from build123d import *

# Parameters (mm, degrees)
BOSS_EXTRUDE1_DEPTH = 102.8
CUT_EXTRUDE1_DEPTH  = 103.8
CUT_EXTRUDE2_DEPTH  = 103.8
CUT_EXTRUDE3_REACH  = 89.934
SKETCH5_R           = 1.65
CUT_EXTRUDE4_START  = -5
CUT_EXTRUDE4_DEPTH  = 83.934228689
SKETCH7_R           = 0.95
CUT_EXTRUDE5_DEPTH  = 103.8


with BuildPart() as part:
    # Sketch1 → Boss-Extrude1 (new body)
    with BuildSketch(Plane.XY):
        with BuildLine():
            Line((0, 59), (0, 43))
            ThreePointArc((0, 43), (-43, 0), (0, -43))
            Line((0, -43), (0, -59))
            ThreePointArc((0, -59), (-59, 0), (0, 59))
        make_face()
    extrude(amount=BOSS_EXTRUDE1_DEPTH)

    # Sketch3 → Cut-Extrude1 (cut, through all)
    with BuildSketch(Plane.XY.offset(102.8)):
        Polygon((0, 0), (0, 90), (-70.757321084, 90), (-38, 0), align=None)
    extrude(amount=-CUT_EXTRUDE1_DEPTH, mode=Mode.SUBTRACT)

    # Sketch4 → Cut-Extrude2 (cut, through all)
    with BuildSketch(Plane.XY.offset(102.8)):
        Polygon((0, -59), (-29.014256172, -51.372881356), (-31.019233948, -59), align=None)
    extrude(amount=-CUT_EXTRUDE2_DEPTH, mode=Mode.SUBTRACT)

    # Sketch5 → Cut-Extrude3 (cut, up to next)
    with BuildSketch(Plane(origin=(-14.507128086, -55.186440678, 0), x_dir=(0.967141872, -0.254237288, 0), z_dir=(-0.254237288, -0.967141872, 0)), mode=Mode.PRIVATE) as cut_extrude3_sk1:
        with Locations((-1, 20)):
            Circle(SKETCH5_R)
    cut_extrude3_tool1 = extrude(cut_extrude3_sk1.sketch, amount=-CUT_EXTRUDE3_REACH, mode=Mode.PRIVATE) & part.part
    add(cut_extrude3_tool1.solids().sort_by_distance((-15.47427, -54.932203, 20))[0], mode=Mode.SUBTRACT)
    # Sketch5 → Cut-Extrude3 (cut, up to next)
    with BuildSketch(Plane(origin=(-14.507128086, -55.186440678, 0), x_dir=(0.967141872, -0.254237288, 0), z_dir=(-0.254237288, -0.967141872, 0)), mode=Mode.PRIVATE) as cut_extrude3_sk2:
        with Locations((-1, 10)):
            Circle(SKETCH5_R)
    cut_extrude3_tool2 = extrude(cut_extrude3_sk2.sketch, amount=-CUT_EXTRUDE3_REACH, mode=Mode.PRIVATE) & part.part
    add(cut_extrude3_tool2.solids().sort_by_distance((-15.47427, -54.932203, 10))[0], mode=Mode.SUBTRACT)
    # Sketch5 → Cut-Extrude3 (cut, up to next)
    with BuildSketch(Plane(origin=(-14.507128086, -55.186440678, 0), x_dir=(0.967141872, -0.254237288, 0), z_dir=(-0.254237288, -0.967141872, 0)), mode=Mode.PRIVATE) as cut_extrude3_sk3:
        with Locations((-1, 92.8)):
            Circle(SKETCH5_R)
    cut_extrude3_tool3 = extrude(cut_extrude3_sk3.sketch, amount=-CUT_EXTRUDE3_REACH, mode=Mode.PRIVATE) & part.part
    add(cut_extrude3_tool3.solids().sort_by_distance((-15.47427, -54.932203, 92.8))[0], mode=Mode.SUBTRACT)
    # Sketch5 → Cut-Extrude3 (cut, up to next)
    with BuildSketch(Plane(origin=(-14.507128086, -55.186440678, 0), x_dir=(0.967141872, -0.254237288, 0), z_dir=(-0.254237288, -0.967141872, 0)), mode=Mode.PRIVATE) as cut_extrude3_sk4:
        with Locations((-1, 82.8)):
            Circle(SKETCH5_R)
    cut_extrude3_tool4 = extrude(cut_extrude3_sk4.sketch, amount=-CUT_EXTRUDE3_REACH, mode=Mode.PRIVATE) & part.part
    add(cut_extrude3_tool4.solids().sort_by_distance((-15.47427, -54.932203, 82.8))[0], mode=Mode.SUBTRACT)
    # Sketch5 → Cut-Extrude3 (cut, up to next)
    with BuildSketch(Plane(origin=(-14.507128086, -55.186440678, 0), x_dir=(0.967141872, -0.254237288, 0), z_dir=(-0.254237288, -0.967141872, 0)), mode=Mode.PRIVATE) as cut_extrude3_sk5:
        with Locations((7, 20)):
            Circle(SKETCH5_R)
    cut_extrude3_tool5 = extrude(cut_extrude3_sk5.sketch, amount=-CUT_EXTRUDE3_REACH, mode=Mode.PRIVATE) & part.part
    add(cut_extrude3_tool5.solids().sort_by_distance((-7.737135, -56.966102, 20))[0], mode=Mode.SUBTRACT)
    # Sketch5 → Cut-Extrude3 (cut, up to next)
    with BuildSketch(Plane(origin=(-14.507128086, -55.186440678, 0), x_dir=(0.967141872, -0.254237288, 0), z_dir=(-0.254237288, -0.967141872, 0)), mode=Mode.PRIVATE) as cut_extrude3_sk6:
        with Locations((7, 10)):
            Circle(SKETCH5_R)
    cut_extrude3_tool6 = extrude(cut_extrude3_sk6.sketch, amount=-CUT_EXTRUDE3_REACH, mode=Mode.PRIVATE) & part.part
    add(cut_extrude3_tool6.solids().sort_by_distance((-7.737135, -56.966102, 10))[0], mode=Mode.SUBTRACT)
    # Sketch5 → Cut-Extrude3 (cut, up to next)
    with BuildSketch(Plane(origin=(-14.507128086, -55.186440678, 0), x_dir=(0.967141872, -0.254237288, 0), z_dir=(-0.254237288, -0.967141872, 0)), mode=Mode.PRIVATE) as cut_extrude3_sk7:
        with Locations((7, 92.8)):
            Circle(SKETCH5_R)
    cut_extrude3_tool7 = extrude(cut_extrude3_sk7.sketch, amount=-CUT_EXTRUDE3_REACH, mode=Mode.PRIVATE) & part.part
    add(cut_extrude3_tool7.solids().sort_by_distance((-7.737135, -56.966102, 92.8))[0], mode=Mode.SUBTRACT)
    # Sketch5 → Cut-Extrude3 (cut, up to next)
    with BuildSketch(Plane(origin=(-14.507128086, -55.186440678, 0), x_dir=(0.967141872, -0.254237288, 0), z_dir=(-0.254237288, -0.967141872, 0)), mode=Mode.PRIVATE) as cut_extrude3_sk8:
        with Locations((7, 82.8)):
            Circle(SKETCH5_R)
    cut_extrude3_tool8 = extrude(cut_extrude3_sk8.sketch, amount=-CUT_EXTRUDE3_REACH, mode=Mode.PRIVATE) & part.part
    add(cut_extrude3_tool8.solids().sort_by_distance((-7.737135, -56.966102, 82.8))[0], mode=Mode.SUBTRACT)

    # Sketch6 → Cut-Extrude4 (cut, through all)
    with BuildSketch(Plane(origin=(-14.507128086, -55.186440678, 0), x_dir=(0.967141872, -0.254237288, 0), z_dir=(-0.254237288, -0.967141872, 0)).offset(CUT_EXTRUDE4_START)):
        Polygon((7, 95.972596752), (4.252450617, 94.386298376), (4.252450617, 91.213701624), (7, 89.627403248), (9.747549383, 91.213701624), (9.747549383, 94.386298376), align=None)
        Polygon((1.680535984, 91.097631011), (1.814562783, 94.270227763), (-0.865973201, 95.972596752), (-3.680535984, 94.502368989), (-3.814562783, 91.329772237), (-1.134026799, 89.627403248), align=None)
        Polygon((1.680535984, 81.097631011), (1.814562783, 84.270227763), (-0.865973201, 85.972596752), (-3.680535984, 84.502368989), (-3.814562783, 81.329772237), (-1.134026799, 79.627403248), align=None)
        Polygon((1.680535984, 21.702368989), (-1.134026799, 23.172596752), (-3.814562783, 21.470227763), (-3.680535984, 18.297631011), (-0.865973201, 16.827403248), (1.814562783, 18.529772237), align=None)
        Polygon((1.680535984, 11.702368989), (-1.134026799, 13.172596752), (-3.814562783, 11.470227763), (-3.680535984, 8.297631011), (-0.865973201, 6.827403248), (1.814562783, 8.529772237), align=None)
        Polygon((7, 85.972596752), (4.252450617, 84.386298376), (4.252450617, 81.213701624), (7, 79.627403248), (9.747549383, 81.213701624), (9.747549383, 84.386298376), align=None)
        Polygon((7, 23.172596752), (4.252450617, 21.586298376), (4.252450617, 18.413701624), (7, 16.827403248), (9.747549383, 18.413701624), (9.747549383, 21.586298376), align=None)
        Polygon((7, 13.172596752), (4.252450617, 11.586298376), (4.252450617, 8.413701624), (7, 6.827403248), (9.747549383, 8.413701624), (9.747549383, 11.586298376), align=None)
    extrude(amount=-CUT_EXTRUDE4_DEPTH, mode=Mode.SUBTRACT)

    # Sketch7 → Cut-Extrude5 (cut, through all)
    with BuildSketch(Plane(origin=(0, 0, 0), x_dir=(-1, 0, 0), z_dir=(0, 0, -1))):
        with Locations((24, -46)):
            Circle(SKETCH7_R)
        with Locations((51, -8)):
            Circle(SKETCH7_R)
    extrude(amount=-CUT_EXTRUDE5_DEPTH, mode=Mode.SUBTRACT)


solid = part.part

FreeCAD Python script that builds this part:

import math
import FreeCAD as App
import Part
import Sketcher
from FreeCAD import Vector
Q = App.Units.Quantity


def add_polygon(sketch, points):
    """Adds a closed chain of lines whose ends are joined by coincident constraints."""
    first, n = sketch.GeometryCount, len(points)
    for a, b in zip(points, points[1:] + points[:1]):
        sketch.addGeometry(Part.LineSegment(App.Vector(*a, 0), App.Vector(*b, 0)), False)
    for i in range(n):
        sketch.addConstraint(Sketcher.Constraint("Coincident", first + i, 2, first + (i + 1) % n, 1))

doc = App.newDocument("Part")
params = doc.addObject("Spreadsheet::Sheet", "Params")
for row, (alias, value) in enumerate([
    ("sketch1_radius", "59 mm"),
    ("sketch1_radius2", "43 mm"),
    ("pad1_length", "102.8 mm"),
    ("sketch2_width", "38 mm"),
    ("sketch2_height", "90 mm"),
    ("sketch3_length", "30 mm"),
    ("sketch4_diameter", "3.3 mm"),
    ("sketch5_diameter", "3.3 mm"),
    ("sketch6_diameter", "3.3 mm"),
    ("sketch7_diameter", "3.3 mm"),
    ("sketch8_diameter", "3.3 mm"),
    ("sketch9_diameter", "3.3 mm"),
    ("sketch10_diameter", "3.3 mm"),
    ("sketch11_diameter", "3.3 mm"),
    ("sketch13_diameter", "1.9 mm"),
], start=1):
    params.set(f"A{row}", alias)
    params.set(f"B{row}", "=" + value)
    params.setAlias(f"B{row}", alias)

body = doc.addObject("PartDesign::Body", "Body")

sketch1 = body.newObject("Sketcher::SketchObject", "Sketch")
sketch1.AttachmentSupport = (doc.getObject("XY_Plane"), [""])
sketch1.MapMode = "FlatFace"
sketch1.addGeometry(Part.LineSegment(Vector(0, 43, 0), Vector(0, 59, 0)), False)
sketch1.addGeometry(Part.ArcOfCircle(Part.Circle(Vector(0, 0, 0), Vector(0, 0, 1), 59), math.radians(90), math.radians(270)), False)
sketch1.addGeometry(Part.LineSegment(Vector(0, -59, 0), Vector(0, -43, 0)), False)
sketch1.addGeometry(Part.ArcOfCircle(Part.Circle(Vector(0, 0, 0), Vector(0, 0, 1), 43), math.radians(90), math.radians(270)), False)
sketch1.addConstraint(Sketcher.Constraint("Coincident", 0, 2, 1, 1))
sketch1.addConstraint(Sketcher.Constraint("Coincident", 1, 2, 2, 1))
sketch1.addConstraint(Sketcher.Constraint("Coincident", 2, 2, 3, 2))
sketch1.addConstraint(Sketcher.Constraint("Coincident", 3, 1, 0, 1))
sketch1.addConstraint(Sketcher.Constraint("Vertical", 0))
sketch1.addConstraint(Sketcher.Constraint("Vertical", 2))
sketch1.addConstraint(Sketcher.Constraint("Coincident", 1, 3, -1, 1))
sketch1.addConstraint(Sketcher.Constraint("Coincident", 3, 3, -1, 1))
sketch1.addConstraint(Sketcher.Constraint("PointOnObject", 0, 2, -2))
sketch1.addConstraint(Sketcher.Constraint("PointOnObject", 1, 2, -2))
sketch1.addConstraint(Sketcher.Constraint("Radius", 1, 59.0))
sketch1.addConstraint(Sketcher.Constraint("Radius", 3, 43.0))
sketch1.setExpression("Constraints[10]", "Params.sketch1_radius")
sketch1.setExpression("Constraints[11]", "Params.sketch1_radius2")
pad1 = body.newObject("PartDesign::Pad", "Pad")
pad1.Profile = sketch1
pad1.setExpression("Length", "Params.pad1_length")

sketch2 = body.newObject("Sketcher::SketchObject", "Sketch001")
sketch2.AttachmentSupport = (doc.getObject("XY_Plane"), [""])
sketch2.MapMode = "FlatFace"
sketch2.AttachmentOffset = App.Placement(Vector(0, 0, 102.8), App.Rotation())
add_polygon(sketch2, [(0, 0), (0, 90), (-71, 90), (-38, 0)])
sketch2.addConstraint(Sketcher.Constraint("Vertical", 0))
sketch2.addConstraint(Sketcher.Constraint("Horizontal", 1))
sketch2.addConstraint(Sketcher.Constraint("Horizontal", 3))
sketch2.addConstraint(Sketcher.Constraint("Coincident", 3, 2, -1, 1))
sketch2.addConstraint(Sketcher.Constraint("DistanceX", 3, 1, 3, 2, 38.0))
sketch2.addConstraint(Sketcher.Constraint("DistanceY", 0, 1, 0, 2, 90.0))
sketch2.addConstraint(Sketcher.Constraint("Angle", 2, Q("-70 deg")))
sketch2.setExpression("Constraints[8]", "Params.sketch2_width")
sketch2.setExpression("Constraints[9]", "Params.sketch2_height")
pocket1 = body.newObject("PartDesign::Pocket", "Pocket")
pocket1.Profile = sketch2
pocket1.Type = "ThroughAll"

sketch3 = body.newObject("Sketcher::SketchObject", "Sketch002")
sketch3.AttachmentSupport = (doc.getObject("XY_Plane"), [""])
sketch3.MapMode = "FlatFace"
sketch3.AttachmentOffset = App.Placement(Vector(0, 0, 102.8), App.Rotation())
add_polygon(sketch3, [(0, -59), (-29, -51), (-31, -59)])
sketch3.addConstraint(Sketcher.Constraint("Horizontal", 2))
sketch3.addConstraint(Sketcher.Constraint("PointOnObject", 2, 2, -2))
sketch3.addConstraint(Sketcher.Constraint("Perpendicular", 0, 1))
sketch3.addConstraint(Sketcher.Constraint("Distance", 0, 30.0))
sketch3.addConstraint(Sketcher.Constraint("DistanceY", 1, 2, -1, 1, 59.0))
sketch3.addConstraint(Sketcher.Constraint("DistanceX", 2, 1, 2, 2, 31.019234))
sketch3.setExpression("Constraints[6]", "Params.sketch3_length")
pocket2 = body.newObject("PartDesign::Pocket", "Pocket001")
pocket2.Profile = sketch3
pocket2.Type = "ThroughAll"

sketch4 = body.newObject("Sketcher::SketchObject", "Sketch003")
sketch4.Placement = App.Placement(Vector(-14.507128, -55.186441, 0), App.Rotation(Vector(0.967141872, -0.254237288, 0), Vector(0, 0, 0.999999999), Vector(-0.254237288, -0.967141872, 0), "ZXY"))
sketch4.addGeometry(Part.Circle(Vector(-1, 20, 0), Vector(0, 0, 1), 1.6), False)
sketch4.addConstraint(Sketcher.Constraint("Diameter", 0, 3.3))
sketch4.addConstraint(Sketcher.Constraint("DistanceX", 0, 3, -1, 1, 1.0))
sketch4.addConstraint(Sketcher.Constraint("DistanceY", -1, 1, 0, 3, 20.0))
sketch4.setExpression("Constraints[0]", "Params.sketch4_diameter")
pocket3 = body.newObject("PartDesign::Pocket", "Pocket002")
pocket3.Profile = sketch4
pocket3.Type = "UpToFirst"

sketch5 = body.newObject("Sketcher::SketchObject", "Sketch004")
sketch5.Placement = App.Placement(Vector(-14.507128, -55.186441, 0), App.Rotation(Vector(0.967141872, -0.254237288, 0), Vector(0, 0, 0.999999999), Vector(-0.254237288, -0.967141872, 0), "ZXY"))
sketch5.addGeometry(Part.Circle(Vector(-1, 10, 0), Vector(0, 0, 1), 1.6), False)
sketch5.addConstraint(Sketcher.Constraint("Diameter", 0, 3.3))
sketch5.addConstraint(Sketcher.Constraint("DistanceX", 0, 3, -1, 1, 1.0))
sketch5.addConstraint(Sketcher.Constraint("DistanceY", -1, 1, 0, 3, 10.0))
sketch5.setExpression("Constraints[0]", "Params.sketch5_diameter")
pocket4 = body.newObject("PartDesign::Pocket", "Pocket003")
pocket4.Profile = sketch5
pocket4.Type = "UpToFirst"

sketch6 = body.newObject("Sketcher::SketchObject", "Sketch005")
sketch6.Placement = App.Placement(Vector(-14.507128, -55.186441, 0), App.Rotation(Vector(0.967141872, -0.254237288, 0), Vector(0, 0, 0.999999999), Vector(-0.254237288, -0.967141872, 0), "ZXY"))
sketch6.addGeometry(Part.Circle(Vector(-1, 92.8, 0), Vector(0, 0, 1), 1.6), False)
sketch6.addConstraint(Sketcher.Constraint("Diameter", 0, 3.3))
sketch6.addConstraint(Sketcher.Constraint("DistanceX", 0, 3, -1, 1, 1.0))
sketch6.addConstraint(Sketcher.Constraint("DistanceY", -1, 1, 0, 3, 92.8))
sketch6.setExpression("Constraints[0]", "Params.sketch6_diameter")
pocket5 = body.newObject("PartDesign::Pocket", "Pocket004")
pocket5.Profile = sketch6
pocket5.Type = "UpToFirst"

sketch7 = body.newObject("Sketcher::SketchObject", "Sketch006")
sketch7.Placement = App.Placement(Vector(-14.507128, -55.186441, 0), App.Rotation(Vector(0.967141872, -0.254237288, 0), Vector(0, 0, 0.999999999), Vector(-0.254237288, -0.967141872, 0), "ZXY"))
sketch7.addGeometry(Part.Circle(Vector(-1, 82.8, 0), Vector(0, 0, 1), 1.6), False)
sketch7.addConstraint(Sketcher.Constraint("Diameter", 0, 3.3))
sketch7.addConstraint(Sketcher.Constraint("DistanceX", 0, 3, -1, 1, 1.0))
sketch7.addConstraint(Sketcher.Constraint("DistanceY", -1, 1, 0, 3, 82.8))
sketch7.setExpression("Constraints[0]", "Params.sketch7_diameter")
pocket6 = body.newObject("PartDesign::Pocket", "Pocket005")
pocket6.Profile = sketch7
pocket6.Type = "UpToFirst"

sketch8 = body.newObject("Sketcher::SketchObject", "Sketch007")
sketch8.Placement = App.Placement(Vector(-14.507128, -55.186441, 0), App.Rotation(Vector(0.967141872, -0.254237288, 0), Vector(0, 0, 0.999999999), Vector(-0.254237288, -0.967141872, 0), "ZXY"))
sketch8.addGeometry(Part.Circle(Vector(7, 20, 0), Vector(0, 0, 1), 1.6), False)
sketch8.addConstraint(Sketcher.Constraint("Diameter", 0, 3.3))
sketch8.addConstraint(Sketcher.Constraint("DistanceX", -1, 1, 0, 3, 7.0))
sketch8.addConstraint(Sketcher.Constraint("DistanceY", -1, 1, 0, 3, 20.0))
sketch8.setExpression("Constraints[0]", "Params.sketch8_diameter")
pocket7 = body.newObject("PartDesign::Pocket", "Pocket006")
pocket7.Profile = sketch8
pocket7.Type = "UpToFirst"

sketch9 = body.newObject("Sketcher::SketchObject", "Sketch008")
sketch9.Placement = App.Placement(Vector(-14.507128, -55.186441, 0), App.Rotation(Vector(0.967141872, -0.254237288, 0), Vector(0, 0, 0.999999999), Vector(-0.254237288, -0.967141872, 0), "ZXY"))
sketch9.addGeometry(Part.Circle(Vector(7, 10, 0), Vector(0, 0, 1), 1.6), False)
sketch9.addConstraint(Sketcher.Constraint("Diameter", 0, 3.3))
sketch9.addConstraint(Sketcher.Constraint("DistanceX", -1, 1, 0, 3, 7.0))
sketch9.addConstraint(Sketcher.Constraint("DistanceY", -1, 1, 0, 3, 10.0))
sketch9.setExpression("Constraints[0]", "Params.sketch9_diameter")
pocket8 = body.newObject("PartDesign::Pocket", "Pocket007")
pocket8.Profile = sketch9
pocket8.Type = "UpToFirst"

sketch10 = body.newObject("Sketcher::SketchObject", "Sketch009")
sketch10.Placement = App.Placement(Vector(-14.507128, -55.186441, 0), App.Rotation(Vector(0.967141872, -0.254237288, 0), Vector(0, 0, 0.999999999), Vector(-0.254237288, -0.967141872, 0), "ZXY"))
sketch10.addGeometry(Part.Circle(Vector(7, 92.8, 0), Vector(0, 0, 1), 1.6), False)
sketch10.addConstraint(Sketcher.Constraint("Diameter", 0, 3.3))
sketch10.addConstraint(Sketcher.Constraint("DistanceX", -1, 1, 0, 3, 7.0))
sketch10.addConstraint(Sketcher.Constraint("DistanceY", -1, 1, 0, 3, 92.8))
sketch10.setExpression("Constraints[0]", "Params.sketch10_diameter")
pocket9 = body.newObject("PartDesign::Pocket", "Pocket008")
pocket9.Profile = sketch10
pocket9.Type = "UpToFirst"

sketch11 = body.newObject("Sketcher::SketchObject", "Sketch010")
sketch11.Placement = App.Placement(Vector(-14.507128, -55.186441, 0), App.Rotation(Vector(0.967141872, -0.254237288, 0), Vector(0, 0, 0.999999999), Vector(-0.254237288, -0.967141872, 0), "ZXY"))
sketch11.addGeometry(Part.Circle(Vector(7, 82.8, 0), Vector(0, 0, 1), 1.6), False)
sketch11.addConstraint(Sketcher.Constraint("Diameter", 0, 3.3))
sketch11.addConstraint(Sketcher.Constraint("DistanceX", -1, 1, 0, 3, 7.0))
sketch11.addConstraint(Sketcher.Constraint("DistanceY", -1, 1, 0, 3, 82.8))
sketch11.setExpression("Constraints[0]", "Params.sketch11_diameter")
pocket10 = body.newObject("PartDesign::Pocket", "Pocket009")
pocket10.Profile = sketch11
pocket10.Type = "UpToFirst"

sketch12 = body.newObject("Sketcher::SketchObject", "Sketch011")
sketch12.Placement = App.Placement(Vector(-13.235942, -50.350731, 0), App.Rotation(Vector(0.967141872, -0.254237288, 0), Vector(0, 0, 0.999999999), Vector(-0.254237288, -0.967141872, 0), "ZXY"))
add_polygon(sketch12, [(7, 96), (4.3, 94.4), (4.3, 91.2), (7, 89.6), (9.7, 91.2), (9.7, 94.4)])
add_polygon(sketch12, [(1.7, 91.1), (1.8, 94.3), (-0.9, 96), (-3.7, 94.5), (-3.8, 91.3), (-1.1, 89.6)])
add_polygon(sketch12, [(1.7, 81.1), (1.8, 84.3), (-0.9, 86), (-3.7, 84.5), (-3.8, 81.3), (-1.1, 79.6)])
add_polygon(sketch12, [(1.7, 21.7), (-1.1, 23.2), (-3.8, 21.5), (-3.7, 18.3), (-0.9, 16.8), (1.8, 18.5)])
add_polygon(sketch12, [(1.7, 11.7), (-1.1, 13.2), (-3.8, 11.5), (-3.7, 8.3), (-0.9, 6.8), (1.8, 8.5)])
add_polygon(sketch12, [(7, 86), (4.3, 84.4), (4.3, 81.2), (7, 79.6), (9.7, 81.2), (9.7, 84.4)])
add_polygon(sketch12, [(7, 23.2), (4.3, 21.6), (4.3, 18.4), (7, 16.8), (9.7, 18.4), (9.7, 21.6)])
add_polygon(sketch12, [(7, 13.2), (4.3, 11.6), (4.3, 8.4), (7, 6.8), (9.7, 8.4), (9.7, 11.6)])
sketch12.addConstraint(Sketcher.Constraint("Vertical", 1))
sketch12.addConstraint(Sketcher.Constraint("Vertical", 4))
sketch12.addConstraint(Sketcher.Constraint("Vertical", 31))
sketch12.addConstraint(Sketcher.Constraint("Vertical", 34))
sketch12.addConstraint(Sketcher.Constraint("Vertical", 37))
sketch12.addConstraint(Sketcher.Constraint("Vertical", 40))
sketch12.addConstraint(Sketcher.Constraint("Vertical", 43))
sketch12.addConstraint(Sketcher.Constraint("Vertical", 46))
sketch12.addConstraint(Sketcher.Constraint("Parallel", 0, 3))
sketch12.addConstraint(Sketcher.Constraint("Parallel", 2, 5))
sketch12.addConstraint(Sketcher.Constraint("Parallel", 6, 9))
sketch12.addConstraint(Sketcher.Constraint("Parallel", 7, 10))
sketch12.addConstraint(Sketcher.Constraint("Parallel", 8, 11))
sketch12.addConstraint(Sketcher.Constraint("Parallel", 9, 12))
sketch12.addConstraint(Sketcher.Constraint("Parallel", 10, 13))
sketch12.addConstraint(Sketcher.Constraint("Parallel", 11, 14))
sketch12.addConstraint(Sketcher.Constraint("Parallel", 12, 15))
sketch12.addConstraint(Sketcher.Constraint("Parallel", 13, 16))
sketch12.addConstraint(Sketcher.Constraint("Parallel", 14, 17))
sketch12.addConstraint(Sketcher.Constraint("Parallel", 18, 21))
sketch12.addConstraint(Sketcher.Constraint("Parallel", 19, 22))
sketch12.addConstraint(Sketcher.Constraint("Parallel", 20, 23))
sketch12.addConstraint(Sketcher.Constraint("Parallel", 21, 24))
sketch12.addConstraint(Sketcher.Constraint("Parallel", 22, 25))
sketch12.addConstraint(Sketcher.Constraint("Parallel", 23, 26))
sketch12.addConstraint(Sketcher.Constraint("Parallel", 24, 27))
sketch12.addConstraint(Sketcher.Constraint("Parallel", 25, 28))
sketch12.addConstraint(Sketcher.Constraint("Parallel", 26, 29))
sketch12.addConstraint(Sketcher.Constraint("Parallel", 3, 30))
sketch12.addConstraint(Sketcher.Constraint("Parallel", 5, 32))
sketch12.addConstraint(Sketcher.Constraint("Parallel", 30, 33))
sketch12.addConstraint(Sketcher.Constraint("Parallel", 32, 35))
sketch12.addConstraint(Sketcher.Constraint("Parallel", 33, 36))
sketch12.addConstraint(Sketcher.Constraint("Parallel", 35, 38))
sketch12.addConstraint(Sketcher.Constraint("Parallel", 36, 39))
sketch12.addConstraint(Sketcher.Constraint("Parallel", 38, 41))
sketch12.addConstraint(Sketcher.Constraint("Parallel", 39, 42))
sketch12.addConstraint(Sketcher.Constraint("Parallel", 41, 44))
sketch12.addConstraint(Sketcher.Constraint("Parallel", 42, 45))
sketch12.addConstraint(Sketcher.Constraint("Parallel", 44, 47))
sketch12.addConstraint(Sketcher.Constraint("Horizontal", 1, 2, 3, 2))
sketch12.addConstraint(Sketcher.Constraint("Horizontal", 0, 2, 4, 2))
sketch12.addConstraint(Sketcher.Constraint("Horizontal", 5, 2, 7, 2))
sketch12.addConstraint(Sketcher.Constraint("Horizontal", 2, 2, 10, 2))
sketch12.addConstraint(Sketcher.Constraint("Horizontal", 16, 2, 32, 2))
sketch12.addConstraint(Sketcher.Constraint("Horizontal", 31, 2, 33, 2))
sketch12.addConstraint(Sketcher.Constraint("Horizontal", 30, 2, 34, 2))
sketch12.addConstraint(Sketcher.Constraint("Horizontal", 13, 2, 35, 2))
sketch12.addConstraint(Sketcher.Constraint("Horizontal", 21, 2, 38, 2))
sketch12.addConstraint(Sketcher.Constraint("Horizontal", 37, 2, 39, 2))
sketch12.addConstraint(Sketcher.Constraint("Horizontal", 36, 2, 40, 2))
sketch12.addConstraint(Sketcher.Constraint("Horizontal", 18, 2, 41, 2))
sketch12.addConstraint(Sketcher.Constraint("Horizontal", 27, 2, 44, 2))
sketch12.addConstraint(Sketcher.Constraint("Horizontal", 43, 2, 45, 2))
sketch12.addConstraint(Sketcher.Constraint("Horizontal", 42, 2, 46, 2))
sketch12.addConstraint(Sketcher.Constraint("Horizontal", 24, 2, 47, 2))
sketch12.addConstraint(Sketcher.Constraint("Vertical", 2, 2, 5, 2))
sketch12.addConstraint(Sketcher.Constraint("Vertical", 6, 2, 12, 2))
sketch12.addConstraint(Sketcher.Constraint("Vertical", 7, 2, 13, 2))
sketch12.addConstraint(Sketcher.Constraint("Vertical", 8, 2, 14, 2))
sketch12.addConstraint(Sketcher.Constraint("Vertical", 9, 2, 15, 2))
sketch12.addConstraint(Sketcher.Constraint("Vertical", 10, 2, 16, 2))
sketch12.addConstraint(Sketcher.Constraint("Vertical", 16, 2, 18, 2))
sketch12.addConstraint(Sketcher.Constraint("Vertical", 15, 2, 19, 2))
sketch12.addConstraint(Sketcher.Constraint("Vertical", 14, 2, 20, 2))
sketch12.addConstraint(Sketcher.Constraint("Vertical", 13, 2, 21, 2))
sketch12.addConstraint(Sketcher.Constraint("Vertical", 12, 2, 22, 2))
sketch12.addConstraint(Sketcher.Constraint("Vertical", 18, 2, 24, 2))
sketch12.addConstraint(Sketcher.Constraint("Vertical", 19, 2, 25, 2))
sketch12.addConstraint(Sketcher.Constraint("Vertical", 20, 2, 26, 2))
sketch12.addConstraint(Sketcher.Constraint("Vertical", 21, 2, 27, 2))
sketch12.addConstraint(Sketcher.Constraint("Vertical", 22, 2, 28, 2))
sketch12.addConstraint(Sketcher.Constraint("Vertical", 1, 2, 30, 2))
sketch12.addConstraint(Sketcher.Constraint("Vertical", 5, 2, 32, 2))
sketch12.addConstraint(Sketcher.Constraint("Vertical", 31, 2, 36, 2))
sketch12.addConstraint(Sketcher.Constraint("Vertical", 35, 2, 38, 2))
sketch12.addConstraint(Sketcher.Constraint("Vertical", 37, 2, 42, 2))
sketch12.addConstraint(Sketcher.Constraint("Vertical", 41, 2, 44, 2))
sketch12.addConstraint(Sketcher.Constraint("Equal", 34, 37))
sketch12.addConstraint(Sketcher.Constraint("Equal", 6, 7))
sketch12.addConstraint(Sketcher.Constraint("Equal", 7, 8))
sketch12.addConstraint(Sketcher.Constraint("Equal", 8, 9))
sketch12.addConstraint(Sketcher.Constraint("Equal", 17, 18))
sketch12.addConstraint(Sketcher.Constraint("Equal", 18, 19))
sketch12.addConstraint(Sketcher.Constraint("Angle", 0, Q("-150 deg")))
sketch12.addConstraint(Sketcher.Constraint("DistanceX", -1, 1, 2, 2, 7.0))
sketch12.addConstraint(Sketcher.Constraint("DistanceY", 15, 2, 9, 2, 10.0))
sketch12.addConstraint(Sketcher.Constraint("DistanceY", 25, 2, 19, 2, 10.0))
sketch12.addConstraint(Sketcher.Constraint("DistanceY", 20, 2, 17, 2, 62.8))
sketch12.addConstraint(Sketcher.Constraint("DistanceY", -1, 1, 0, 2, 94.386298))
sketch12.addConstraint(Sketcher.Constraint("DistanceY", -1, 1, 1, 2, 91.213701))
sketch12.addConstraint(Sketcher.Constraint("DistanceY", 2, 2, 1, 2, 1.586298))
sketch12.addConstraint(Sketcher.Constraint("DistanceX", 8, 2, 6, 2, 5.495099))
sketch12.addConstraint(Sketcher.Constraint("DistanceY", -1, 1, 8, 2, 94.502369))
sketch12.addConstraint(Sketcher.Constraint("DistanceY", 6, 2, 0, 2, 0.116071))
sketch12.addConstraint(Sketcher.Constraint("DistanceX", -1, 1, 6, 2, 1.814563))
pocket11 = body.newObject("PartDesign::Pocket", "Pocket010")
pocket11.Profile = sketch12
pocket11.Type = "ThroughAll"

sketch13 = body.newObject("Sketcher::SketchObject", "Sketch012")
sketch13.AttachmentSupport = (doc.getObject("XY_Plane"), [""])
sketch13.MapMode = "FlatFace"
sketch13.addGeometry(Part.Circle(Vector(-24, -46, 0), Vector(0, 0, 1), 0.9), False)
sketch13.addGeometry(Part.Circle(Vector(-51, -8, 0), Vector(0, 0, 1), 0.9), False)
sketch13.addConstraint(Sketcher.Constraint("Equal", 0, 1))
sketch13.addConstraint(Sketcher.Constraint("Diameter", 0, 1.9))
sketch13.addConstraint(Sketcher.Constraint("DistanceX", 0, 3, -1, 1, 24.0))
sketch13.addConstraint(Sketcher.Constraint("DistanceY", 0, 3, -1, 1, 46.0))
sketch13.addConstraint(Sketcher.Constraint("DistanceX", 1, 3, -1, 1, 51.0))
sketch13.addConstraint(Sketcher.Constraint("DistanceY", 1, 3, -1, 1, 8.0))
sketch13.setExpression("Constraints[1]", "Params.sketch13_diameter")
pocket12 = body.newObject("PartDesign::Pocket", "Pocket011")
pocket12.Profile = sketch13
pocket12.Type = "ThroughAll"
pocket12.Reversed = True

doc.recompute()
